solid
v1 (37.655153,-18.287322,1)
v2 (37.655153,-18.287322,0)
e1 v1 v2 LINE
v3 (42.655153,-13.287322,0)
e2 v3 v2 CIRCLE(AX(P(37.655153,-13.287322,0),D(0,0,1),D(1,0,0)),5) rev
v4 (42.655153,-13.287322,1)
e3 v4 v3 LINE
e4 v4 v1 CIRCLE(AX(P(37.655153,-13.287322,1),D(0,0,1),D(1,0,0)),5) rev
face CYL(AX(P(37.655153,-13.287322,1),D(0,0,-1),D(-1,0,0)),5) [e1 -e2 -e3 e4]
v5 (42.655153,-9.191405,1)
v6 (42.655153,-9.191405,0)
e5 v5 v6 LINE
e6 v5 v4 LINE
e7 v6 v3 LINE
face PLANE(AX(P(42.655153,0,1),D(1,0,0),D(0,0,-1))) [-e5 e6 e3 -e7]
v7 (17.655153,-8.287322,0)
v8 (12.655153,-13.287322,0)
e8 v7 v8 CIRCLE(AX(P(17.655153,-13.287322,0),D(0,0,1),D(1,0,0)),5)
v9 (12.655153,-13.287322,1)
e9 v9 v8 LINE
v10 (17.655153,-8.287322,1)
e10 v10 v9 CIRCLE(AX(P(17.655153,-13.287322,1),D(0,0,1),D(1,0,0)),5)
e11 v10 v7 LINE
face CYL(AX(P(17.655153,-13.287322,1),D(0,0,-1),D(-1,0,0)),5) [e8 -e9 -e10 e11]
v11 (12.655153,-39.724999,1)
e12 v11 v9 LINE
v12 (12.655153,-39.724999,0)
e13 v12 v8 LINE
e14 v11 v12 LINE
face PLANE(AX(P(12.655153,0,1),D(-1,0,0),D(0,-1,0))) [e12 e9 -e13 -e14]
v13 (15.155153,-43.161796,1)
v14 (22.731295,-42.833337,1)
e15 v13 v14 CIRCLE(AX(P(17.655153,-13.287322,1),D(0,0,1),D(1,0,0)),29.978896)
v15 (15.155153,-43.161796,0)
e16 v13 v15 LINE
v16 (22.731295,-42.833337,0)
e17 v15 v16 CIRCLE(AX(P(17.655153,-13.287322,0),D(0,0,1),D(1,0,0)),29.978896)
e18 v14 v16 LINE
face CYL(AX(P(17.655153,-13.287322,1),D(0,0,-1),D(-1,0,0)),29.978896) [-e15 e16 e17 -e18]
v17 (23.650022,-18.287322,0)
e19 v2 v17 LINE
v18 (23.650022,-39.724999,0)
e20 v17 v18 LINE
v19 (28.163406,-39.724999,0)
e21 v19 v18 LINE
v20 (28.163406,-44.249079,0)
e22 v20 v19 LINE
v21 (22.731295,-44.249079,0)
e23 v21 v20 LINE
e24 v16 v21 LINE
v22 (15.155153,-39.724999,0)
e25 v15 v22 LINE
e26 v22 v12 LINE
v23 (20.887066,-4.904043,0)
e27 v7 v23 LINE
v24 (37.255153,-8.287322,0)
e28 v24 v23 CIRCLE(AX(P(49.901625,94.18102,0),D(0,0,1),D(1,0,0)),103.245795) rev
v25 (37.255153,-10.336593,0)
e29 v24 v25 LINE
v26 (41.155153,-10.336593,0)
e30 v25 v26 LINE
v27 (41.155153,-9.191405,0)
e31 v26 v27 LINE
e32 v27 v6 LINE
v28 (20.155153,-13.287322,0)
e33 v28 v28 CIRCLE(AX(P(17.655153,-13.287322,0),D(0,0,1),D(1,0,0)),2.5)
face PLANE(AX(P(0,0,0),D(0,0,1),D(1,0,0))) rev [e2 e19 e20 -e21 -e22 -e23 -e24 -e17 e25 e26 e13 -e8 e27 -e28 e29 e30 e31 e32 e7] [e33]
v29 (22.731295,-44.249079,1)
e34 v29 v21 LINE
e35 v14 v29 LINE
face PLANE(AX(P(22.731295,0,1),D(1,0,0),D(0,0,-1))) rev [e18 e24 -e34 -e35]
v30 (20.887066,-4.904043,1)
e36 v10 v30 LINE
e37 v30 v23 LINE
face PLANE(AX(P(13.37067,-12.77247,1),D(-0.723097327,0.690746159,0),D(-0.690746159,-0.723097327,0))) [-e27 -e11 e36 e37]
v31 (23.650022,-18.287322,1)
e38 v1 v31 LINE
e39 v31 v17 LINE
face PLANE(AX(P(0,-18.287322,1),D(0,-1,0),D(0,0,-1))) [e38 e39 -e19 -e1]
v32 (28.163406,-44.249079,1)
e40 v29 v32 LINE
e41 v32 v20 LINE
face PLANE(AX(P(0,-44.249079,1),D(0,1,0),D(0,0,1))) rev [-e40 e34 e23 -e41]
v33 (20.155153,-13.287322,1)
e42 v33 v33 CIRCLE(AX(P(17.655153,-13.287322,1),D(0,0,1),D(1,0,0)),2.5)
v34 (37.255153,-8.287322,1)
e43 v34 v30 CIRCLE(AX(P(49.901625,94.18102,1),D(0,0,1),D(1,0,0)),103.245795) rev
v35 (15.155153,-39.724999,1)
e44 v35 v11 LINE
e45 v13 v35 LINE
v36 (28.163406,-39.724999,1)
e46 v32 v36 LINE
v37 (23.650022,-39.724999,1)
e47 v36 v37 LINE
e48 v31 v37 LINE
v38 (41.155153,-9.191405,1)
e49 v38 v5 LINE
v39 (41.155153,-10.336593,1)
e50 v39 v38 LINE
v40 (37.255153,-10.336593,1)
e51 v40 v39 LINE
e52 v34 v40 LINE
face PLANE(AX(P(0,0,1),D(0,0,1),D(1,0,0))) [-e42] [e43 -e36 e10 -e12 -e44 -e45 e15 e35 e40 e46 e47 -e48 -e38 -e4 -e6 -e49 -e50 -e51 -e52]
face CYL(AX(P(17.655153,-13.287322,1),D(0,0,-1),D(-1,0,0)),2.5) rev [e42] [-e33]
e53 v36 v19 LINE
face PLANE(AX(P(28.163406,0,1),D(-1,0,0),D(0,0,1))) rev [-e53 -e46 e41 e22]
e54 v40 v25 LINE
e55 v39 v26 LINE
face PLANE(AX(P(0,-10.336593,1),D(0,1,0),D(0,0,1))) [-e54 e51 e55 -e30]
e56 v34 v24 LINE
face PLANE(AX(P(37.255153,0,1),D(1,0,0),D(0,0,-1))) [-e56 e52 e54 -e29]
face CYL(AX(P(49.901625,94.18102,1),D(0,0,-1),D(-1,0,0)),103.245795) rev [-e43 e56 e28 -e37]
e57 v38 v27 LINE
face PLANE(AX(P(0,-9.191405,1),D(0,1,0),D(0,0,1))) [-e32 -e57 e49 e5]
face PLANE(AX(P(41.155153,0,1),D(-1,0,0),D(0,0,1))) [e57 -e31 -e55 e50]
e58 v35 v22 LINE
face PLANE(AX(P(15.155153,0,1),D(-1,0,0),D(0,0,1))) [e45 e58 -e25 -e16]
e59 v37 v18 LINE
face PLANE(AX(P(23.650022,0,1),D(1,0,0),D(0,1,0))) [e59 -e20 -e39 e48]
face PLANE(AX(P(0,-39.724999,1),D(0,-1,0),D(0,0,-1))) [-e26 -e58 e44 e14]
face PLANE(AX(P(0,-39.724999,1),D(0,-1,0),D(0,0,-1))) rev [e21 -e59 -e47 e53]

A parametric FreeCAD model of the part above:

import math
import FreeCAD as App
import Part
import Sketcher
Q = App.Units.Quantity

doc = App.newDocument("Part")
params = doc.addObject("Spreadsheet::Sheet", "Params")
for row, (alias, value) in enumerate([
    ("sketch1_diameter", "5 mm"),
    ("sketch1_radius", "5 mm"),
    ("sketch1_width", "2.5 mm"),
    ("sketch1_width2", "1.5 mm"),
    ("sketch1_width3", "3.9 mm"),
    ("pad1_length", "1 mm"),
], start=1):
    params.set(f"A{row}", alias)
    params.set(f"B{row}", "=" + value)
    params.setAlias(f"B{row}", alias)

body = doc.addObject("PartDesign::Body", "Body")

# Sketch on XY plane
sketch1 = body.newObject("Sketcher::SketchObject", "Sketch")
sketch1.AttachmentSupport = (doc.getObject("XY_Plane"), [""])
sketch1.MapMode = "FlatFace"
sketch1.addGeometry([
    Part.LineSegment(App.Vector(20.9, -4.9, 0), App.Vector(17.7, -8.3, 0)),  # 0
    Part.ArcOfCircle(Part.Circle(App.Vector(17.7, -13.3, 0), App.Vector(0, 0, 1), 5), math.radians(90), math.radians(180)),  # 1
    Part.LineSegment(App.Vector(12.7, -13.3, 0), App.Vector(12.7, -39.7, 0)),  # 2
    Part.LineSegment(App.Vector(12.7, -39.7, 0), App.Vector(15.2, -39.7, 0)),  # 3
    Part.LineSegment(App.Vector(15.2, -39.7, 0), App.Vector(15.2, -43.2, 0)),  # 4
    Part.ArcOfCircle(Part.Circle(App.Vector(17.7, -13.3, 0), App.Vector(0, 0, 1), 30), math.radians(-94.78), math.radians(-80.25)),  # 5
    Part.LineSegment(App.Vector(22.7, -42.8, 0), App.Vector(22.7, -44.2, 0)),  # 6
    Part.LineSegment(App.Vector(22.7, -44.2, 0), App.Vector(28.2, -44.2, 0)),  # 7
    Part.LineSegment(App.Vector(28.2, -44.2, 0), App.Vector(28.2, -39.7, 0)),  # 8
    Part.LineSegment(App.Vector(28.2, -39.7, 0), App.Vector(23.7, -39.7, 0)),  # 9
    Part.LineSegment(App.Vector(23.7, -39.7, 0), App.Vector(23.7, -18.3, 0)),  # 10
    Part.LineSegment(App.Vector(23.7, -18.3, 0), App.Vector(37.7, -18.3, 0)),  # 11
    Part.ArcOfCircle(Part.Circle(App.Vector(37.7, -13.3, 0), App.Vector(0, 0, 1), 5), math.radians(-90), math.radians(0)),  # 12
    Part.LineSegment(App.Vector(42.7, -13.3, 0), App.Vector(42.7, -9.2, 0)),  # 13
    Part.LineSegment(App.Vector(42.7, -9.2, 0), App.Vector(41.2, -9.2, 0)),  # 14
    Part.LineSegment(App.Vector(41.2, -9.2, 0), App.Vector(41.2, -10.3, 0)),  # 15
    Part.LineSegment(App.Vector(41.2, -10.3, 0), App.Vector(37.3, -10.3, 0)),  # 16
    Part.LineSegment(App.Vector(37.3, -10.3, 0), App.Vector(37.3, -8.3, 0)),  # 17
    Part.ArcOfCircle(Part.Circle(App.Vector(49.9, 94.2, 0), App.Vector(0, 0, 1), 103.2), math.radians(-106.32), math.radians(-97.04)),  # 18
    Part.Circle(App.Vector(17.7, -13.3, 0), App.Vector(0, 0, 1), 2.5),  # 19
], False)
sketch1.addConstraint([
    Sketcher.Constraint("Coincident", 0, 2, 1, 1),
    Sketcher.Constraint("Tangent", 1, 2, 2, 1),
    Sketcher.Constraint("Coincident", 2, 2, 3, 1),
    Sketcher.Constraint("Coincident", 3, 2, 4, 1),
    Sketcher.Constraint("Coincident", 4, 2, 5, 1),
    Sketcher.Constraint("Coincident", 5, 2, 6, 1),
    Sketcher.Constraint("Coincident", 6, 2, 7, 1),
    Sketcher.Constraint("Coincident", 7, 2, 8, 1),
    Sketcher.Constraint("Coincident", 8, 2, 9, 1),
    Sketcher.Constraint("Coincident", 9, 2, 10, 1),
    Sketcher.Constraint("Coincident", 10, 2, 11, 1),
    Sketcher.Constraint("Tangent", 11, 2, 12, 1),
    Sketcher.Constraint("Tangent", 12, 2, 13, 1),
    Sketcher.Constraint("Coincident", 13, 2, 14, 1),
    Sketcher.Constraint("Coincident", 14, 2, 15, 1),
    Sketcher.Constraint("Coincident", 15, 2, 16, 1),
    Sketcher.Constraint("Coincident", 16, 2, 17, 1),
    Sketcher.Constraint("Coincident", 17, 2, 18, 2),
    Sketcher.Constraint("Coincident", 18, 1, 0, 1),
    Sketcher.Constraint("Vertical", 2),
    Sketcher.Constraint("Horizontal", 3),
    Sketcher.Constraint("Vertical", 4),
    Sketcher.Constraint("Vertical", 6),
    Sketcher.Constraint("Horizontal", 7),
    Sketcher.Constraint("Vertical", 8),
    Sketcher.Constraint("Horizontal", 9),
    Sketcher.Constraint("Vertical", 10),
    Sketcher.Constraint("Horizontal", 11),
    Sketcher.Constraint("Vertical", 13),
    Sketcher.Constraint("Horizontal", 14),
    Sketcher.Constraint("Vertical", 15),
    Sketcher.Constraint("Horizontal", 16),
    Sketcher.Constraint("Vertical", 17),
    Sketcher.Constraint("Coincident", 5, 3, 1, 3),
    Sketcher.Constraint("Coincident", 19, 3, 1, 3),
    Sketcher.Constraint("Equal", 1, 12),
    Sketcher.Constraint("Horizontal", 5, 3, 12, 3),
    Sketcher.Constraint("Horizontal", 3, 2, 8, 2),
    Sketcher.Constraint("Horizontal", 0, 2, 17, 2),
    Sketcher.Constraint("Vertical", 19, 3, 0, 2),
    Sketcher.Constraint("Diameter", 19, Q("5 mm")),
    Sketcher.Constraint("Radius", 1, Q("5 mm")),
    Sketcher.Constraint("DistanceX", 3, 1, 3, 2, Q("2.5 mm")),
    Sketcher.Constraint("DistanceX", 14, 2, 14, 1, Q("1.5 mm")),
    Sketcher.Constraint("DistanceX", 16, 2, 16, 1, Q("3.9 mm")),
    Sketcher.Constraint("DistanceX", 1, 3, 12, 3, Q("20 mm")),
    Sketcher.Constraint("DistanceY", 2, 2, -1, 1, Q("39.724999 mm")),
    Sketcher.Constraint("Radius", 5, Q("29.978896 mm")),
    Sketcher.Constraint("Radius", 18, Q("103.245795 mm")),
    Sketcher.Constraint("DistanceX", 7, 1, 7, 2, Q("5.432111 mm")),
    Sketcher.Constraint("DistanceX", 11, 1, 11, 2, Q("14.005131 mm")),
    Sketcher.Constraint("DistanceY", 8, 1, 8, 2, Q("4.52408 mm")),
    Sketcher.Constraint("DistanceY", 15, 2, 15, 1, Q("1.145188 mm")),
    Sketcher.Constraint("DistanceY", 17, 1, 17, 2, Q("2.049272 mm")),
    Sketcher.Constraint("Distance", 0, Q("4.678871 mm")),
    Sketcher.Constraint("DistanceX", 9, 2, 9, 1, Q("4.513383 mm")),
    Sketcher.Constraint("DistanceY", 2, 2, 2, 1, Q("26.437678 mm")),
    Sketcher.Constraint("DistanceY", -1, 1, 18, 3, Q("94.181019 mm")),
    Sketcher.Constraint("DistanceX", -1, 1, 1, 3, Q("17.655153 mm")),
])
sketch1.setExpression("Constraints[40]", "Params.sketch1_diameter")
sketch1.setExpression("Constraints[41]", "Params.sketch1_radius")
sketch1.setExpression("Constraints[42]", "Params.sketch1_width")
sketch1.setExpression("Constraints[43]", "Params.sketch1_width2")
sketch1.setExpression("Constraints[44]", "Params.sketch1_width3")
pad1 = body.newObject("PartDesign::Pad", "Pad")
pad1.Profile = sketch1
pad1.setExpression("Length", "Params.pad1_length")

doc.recompute()
